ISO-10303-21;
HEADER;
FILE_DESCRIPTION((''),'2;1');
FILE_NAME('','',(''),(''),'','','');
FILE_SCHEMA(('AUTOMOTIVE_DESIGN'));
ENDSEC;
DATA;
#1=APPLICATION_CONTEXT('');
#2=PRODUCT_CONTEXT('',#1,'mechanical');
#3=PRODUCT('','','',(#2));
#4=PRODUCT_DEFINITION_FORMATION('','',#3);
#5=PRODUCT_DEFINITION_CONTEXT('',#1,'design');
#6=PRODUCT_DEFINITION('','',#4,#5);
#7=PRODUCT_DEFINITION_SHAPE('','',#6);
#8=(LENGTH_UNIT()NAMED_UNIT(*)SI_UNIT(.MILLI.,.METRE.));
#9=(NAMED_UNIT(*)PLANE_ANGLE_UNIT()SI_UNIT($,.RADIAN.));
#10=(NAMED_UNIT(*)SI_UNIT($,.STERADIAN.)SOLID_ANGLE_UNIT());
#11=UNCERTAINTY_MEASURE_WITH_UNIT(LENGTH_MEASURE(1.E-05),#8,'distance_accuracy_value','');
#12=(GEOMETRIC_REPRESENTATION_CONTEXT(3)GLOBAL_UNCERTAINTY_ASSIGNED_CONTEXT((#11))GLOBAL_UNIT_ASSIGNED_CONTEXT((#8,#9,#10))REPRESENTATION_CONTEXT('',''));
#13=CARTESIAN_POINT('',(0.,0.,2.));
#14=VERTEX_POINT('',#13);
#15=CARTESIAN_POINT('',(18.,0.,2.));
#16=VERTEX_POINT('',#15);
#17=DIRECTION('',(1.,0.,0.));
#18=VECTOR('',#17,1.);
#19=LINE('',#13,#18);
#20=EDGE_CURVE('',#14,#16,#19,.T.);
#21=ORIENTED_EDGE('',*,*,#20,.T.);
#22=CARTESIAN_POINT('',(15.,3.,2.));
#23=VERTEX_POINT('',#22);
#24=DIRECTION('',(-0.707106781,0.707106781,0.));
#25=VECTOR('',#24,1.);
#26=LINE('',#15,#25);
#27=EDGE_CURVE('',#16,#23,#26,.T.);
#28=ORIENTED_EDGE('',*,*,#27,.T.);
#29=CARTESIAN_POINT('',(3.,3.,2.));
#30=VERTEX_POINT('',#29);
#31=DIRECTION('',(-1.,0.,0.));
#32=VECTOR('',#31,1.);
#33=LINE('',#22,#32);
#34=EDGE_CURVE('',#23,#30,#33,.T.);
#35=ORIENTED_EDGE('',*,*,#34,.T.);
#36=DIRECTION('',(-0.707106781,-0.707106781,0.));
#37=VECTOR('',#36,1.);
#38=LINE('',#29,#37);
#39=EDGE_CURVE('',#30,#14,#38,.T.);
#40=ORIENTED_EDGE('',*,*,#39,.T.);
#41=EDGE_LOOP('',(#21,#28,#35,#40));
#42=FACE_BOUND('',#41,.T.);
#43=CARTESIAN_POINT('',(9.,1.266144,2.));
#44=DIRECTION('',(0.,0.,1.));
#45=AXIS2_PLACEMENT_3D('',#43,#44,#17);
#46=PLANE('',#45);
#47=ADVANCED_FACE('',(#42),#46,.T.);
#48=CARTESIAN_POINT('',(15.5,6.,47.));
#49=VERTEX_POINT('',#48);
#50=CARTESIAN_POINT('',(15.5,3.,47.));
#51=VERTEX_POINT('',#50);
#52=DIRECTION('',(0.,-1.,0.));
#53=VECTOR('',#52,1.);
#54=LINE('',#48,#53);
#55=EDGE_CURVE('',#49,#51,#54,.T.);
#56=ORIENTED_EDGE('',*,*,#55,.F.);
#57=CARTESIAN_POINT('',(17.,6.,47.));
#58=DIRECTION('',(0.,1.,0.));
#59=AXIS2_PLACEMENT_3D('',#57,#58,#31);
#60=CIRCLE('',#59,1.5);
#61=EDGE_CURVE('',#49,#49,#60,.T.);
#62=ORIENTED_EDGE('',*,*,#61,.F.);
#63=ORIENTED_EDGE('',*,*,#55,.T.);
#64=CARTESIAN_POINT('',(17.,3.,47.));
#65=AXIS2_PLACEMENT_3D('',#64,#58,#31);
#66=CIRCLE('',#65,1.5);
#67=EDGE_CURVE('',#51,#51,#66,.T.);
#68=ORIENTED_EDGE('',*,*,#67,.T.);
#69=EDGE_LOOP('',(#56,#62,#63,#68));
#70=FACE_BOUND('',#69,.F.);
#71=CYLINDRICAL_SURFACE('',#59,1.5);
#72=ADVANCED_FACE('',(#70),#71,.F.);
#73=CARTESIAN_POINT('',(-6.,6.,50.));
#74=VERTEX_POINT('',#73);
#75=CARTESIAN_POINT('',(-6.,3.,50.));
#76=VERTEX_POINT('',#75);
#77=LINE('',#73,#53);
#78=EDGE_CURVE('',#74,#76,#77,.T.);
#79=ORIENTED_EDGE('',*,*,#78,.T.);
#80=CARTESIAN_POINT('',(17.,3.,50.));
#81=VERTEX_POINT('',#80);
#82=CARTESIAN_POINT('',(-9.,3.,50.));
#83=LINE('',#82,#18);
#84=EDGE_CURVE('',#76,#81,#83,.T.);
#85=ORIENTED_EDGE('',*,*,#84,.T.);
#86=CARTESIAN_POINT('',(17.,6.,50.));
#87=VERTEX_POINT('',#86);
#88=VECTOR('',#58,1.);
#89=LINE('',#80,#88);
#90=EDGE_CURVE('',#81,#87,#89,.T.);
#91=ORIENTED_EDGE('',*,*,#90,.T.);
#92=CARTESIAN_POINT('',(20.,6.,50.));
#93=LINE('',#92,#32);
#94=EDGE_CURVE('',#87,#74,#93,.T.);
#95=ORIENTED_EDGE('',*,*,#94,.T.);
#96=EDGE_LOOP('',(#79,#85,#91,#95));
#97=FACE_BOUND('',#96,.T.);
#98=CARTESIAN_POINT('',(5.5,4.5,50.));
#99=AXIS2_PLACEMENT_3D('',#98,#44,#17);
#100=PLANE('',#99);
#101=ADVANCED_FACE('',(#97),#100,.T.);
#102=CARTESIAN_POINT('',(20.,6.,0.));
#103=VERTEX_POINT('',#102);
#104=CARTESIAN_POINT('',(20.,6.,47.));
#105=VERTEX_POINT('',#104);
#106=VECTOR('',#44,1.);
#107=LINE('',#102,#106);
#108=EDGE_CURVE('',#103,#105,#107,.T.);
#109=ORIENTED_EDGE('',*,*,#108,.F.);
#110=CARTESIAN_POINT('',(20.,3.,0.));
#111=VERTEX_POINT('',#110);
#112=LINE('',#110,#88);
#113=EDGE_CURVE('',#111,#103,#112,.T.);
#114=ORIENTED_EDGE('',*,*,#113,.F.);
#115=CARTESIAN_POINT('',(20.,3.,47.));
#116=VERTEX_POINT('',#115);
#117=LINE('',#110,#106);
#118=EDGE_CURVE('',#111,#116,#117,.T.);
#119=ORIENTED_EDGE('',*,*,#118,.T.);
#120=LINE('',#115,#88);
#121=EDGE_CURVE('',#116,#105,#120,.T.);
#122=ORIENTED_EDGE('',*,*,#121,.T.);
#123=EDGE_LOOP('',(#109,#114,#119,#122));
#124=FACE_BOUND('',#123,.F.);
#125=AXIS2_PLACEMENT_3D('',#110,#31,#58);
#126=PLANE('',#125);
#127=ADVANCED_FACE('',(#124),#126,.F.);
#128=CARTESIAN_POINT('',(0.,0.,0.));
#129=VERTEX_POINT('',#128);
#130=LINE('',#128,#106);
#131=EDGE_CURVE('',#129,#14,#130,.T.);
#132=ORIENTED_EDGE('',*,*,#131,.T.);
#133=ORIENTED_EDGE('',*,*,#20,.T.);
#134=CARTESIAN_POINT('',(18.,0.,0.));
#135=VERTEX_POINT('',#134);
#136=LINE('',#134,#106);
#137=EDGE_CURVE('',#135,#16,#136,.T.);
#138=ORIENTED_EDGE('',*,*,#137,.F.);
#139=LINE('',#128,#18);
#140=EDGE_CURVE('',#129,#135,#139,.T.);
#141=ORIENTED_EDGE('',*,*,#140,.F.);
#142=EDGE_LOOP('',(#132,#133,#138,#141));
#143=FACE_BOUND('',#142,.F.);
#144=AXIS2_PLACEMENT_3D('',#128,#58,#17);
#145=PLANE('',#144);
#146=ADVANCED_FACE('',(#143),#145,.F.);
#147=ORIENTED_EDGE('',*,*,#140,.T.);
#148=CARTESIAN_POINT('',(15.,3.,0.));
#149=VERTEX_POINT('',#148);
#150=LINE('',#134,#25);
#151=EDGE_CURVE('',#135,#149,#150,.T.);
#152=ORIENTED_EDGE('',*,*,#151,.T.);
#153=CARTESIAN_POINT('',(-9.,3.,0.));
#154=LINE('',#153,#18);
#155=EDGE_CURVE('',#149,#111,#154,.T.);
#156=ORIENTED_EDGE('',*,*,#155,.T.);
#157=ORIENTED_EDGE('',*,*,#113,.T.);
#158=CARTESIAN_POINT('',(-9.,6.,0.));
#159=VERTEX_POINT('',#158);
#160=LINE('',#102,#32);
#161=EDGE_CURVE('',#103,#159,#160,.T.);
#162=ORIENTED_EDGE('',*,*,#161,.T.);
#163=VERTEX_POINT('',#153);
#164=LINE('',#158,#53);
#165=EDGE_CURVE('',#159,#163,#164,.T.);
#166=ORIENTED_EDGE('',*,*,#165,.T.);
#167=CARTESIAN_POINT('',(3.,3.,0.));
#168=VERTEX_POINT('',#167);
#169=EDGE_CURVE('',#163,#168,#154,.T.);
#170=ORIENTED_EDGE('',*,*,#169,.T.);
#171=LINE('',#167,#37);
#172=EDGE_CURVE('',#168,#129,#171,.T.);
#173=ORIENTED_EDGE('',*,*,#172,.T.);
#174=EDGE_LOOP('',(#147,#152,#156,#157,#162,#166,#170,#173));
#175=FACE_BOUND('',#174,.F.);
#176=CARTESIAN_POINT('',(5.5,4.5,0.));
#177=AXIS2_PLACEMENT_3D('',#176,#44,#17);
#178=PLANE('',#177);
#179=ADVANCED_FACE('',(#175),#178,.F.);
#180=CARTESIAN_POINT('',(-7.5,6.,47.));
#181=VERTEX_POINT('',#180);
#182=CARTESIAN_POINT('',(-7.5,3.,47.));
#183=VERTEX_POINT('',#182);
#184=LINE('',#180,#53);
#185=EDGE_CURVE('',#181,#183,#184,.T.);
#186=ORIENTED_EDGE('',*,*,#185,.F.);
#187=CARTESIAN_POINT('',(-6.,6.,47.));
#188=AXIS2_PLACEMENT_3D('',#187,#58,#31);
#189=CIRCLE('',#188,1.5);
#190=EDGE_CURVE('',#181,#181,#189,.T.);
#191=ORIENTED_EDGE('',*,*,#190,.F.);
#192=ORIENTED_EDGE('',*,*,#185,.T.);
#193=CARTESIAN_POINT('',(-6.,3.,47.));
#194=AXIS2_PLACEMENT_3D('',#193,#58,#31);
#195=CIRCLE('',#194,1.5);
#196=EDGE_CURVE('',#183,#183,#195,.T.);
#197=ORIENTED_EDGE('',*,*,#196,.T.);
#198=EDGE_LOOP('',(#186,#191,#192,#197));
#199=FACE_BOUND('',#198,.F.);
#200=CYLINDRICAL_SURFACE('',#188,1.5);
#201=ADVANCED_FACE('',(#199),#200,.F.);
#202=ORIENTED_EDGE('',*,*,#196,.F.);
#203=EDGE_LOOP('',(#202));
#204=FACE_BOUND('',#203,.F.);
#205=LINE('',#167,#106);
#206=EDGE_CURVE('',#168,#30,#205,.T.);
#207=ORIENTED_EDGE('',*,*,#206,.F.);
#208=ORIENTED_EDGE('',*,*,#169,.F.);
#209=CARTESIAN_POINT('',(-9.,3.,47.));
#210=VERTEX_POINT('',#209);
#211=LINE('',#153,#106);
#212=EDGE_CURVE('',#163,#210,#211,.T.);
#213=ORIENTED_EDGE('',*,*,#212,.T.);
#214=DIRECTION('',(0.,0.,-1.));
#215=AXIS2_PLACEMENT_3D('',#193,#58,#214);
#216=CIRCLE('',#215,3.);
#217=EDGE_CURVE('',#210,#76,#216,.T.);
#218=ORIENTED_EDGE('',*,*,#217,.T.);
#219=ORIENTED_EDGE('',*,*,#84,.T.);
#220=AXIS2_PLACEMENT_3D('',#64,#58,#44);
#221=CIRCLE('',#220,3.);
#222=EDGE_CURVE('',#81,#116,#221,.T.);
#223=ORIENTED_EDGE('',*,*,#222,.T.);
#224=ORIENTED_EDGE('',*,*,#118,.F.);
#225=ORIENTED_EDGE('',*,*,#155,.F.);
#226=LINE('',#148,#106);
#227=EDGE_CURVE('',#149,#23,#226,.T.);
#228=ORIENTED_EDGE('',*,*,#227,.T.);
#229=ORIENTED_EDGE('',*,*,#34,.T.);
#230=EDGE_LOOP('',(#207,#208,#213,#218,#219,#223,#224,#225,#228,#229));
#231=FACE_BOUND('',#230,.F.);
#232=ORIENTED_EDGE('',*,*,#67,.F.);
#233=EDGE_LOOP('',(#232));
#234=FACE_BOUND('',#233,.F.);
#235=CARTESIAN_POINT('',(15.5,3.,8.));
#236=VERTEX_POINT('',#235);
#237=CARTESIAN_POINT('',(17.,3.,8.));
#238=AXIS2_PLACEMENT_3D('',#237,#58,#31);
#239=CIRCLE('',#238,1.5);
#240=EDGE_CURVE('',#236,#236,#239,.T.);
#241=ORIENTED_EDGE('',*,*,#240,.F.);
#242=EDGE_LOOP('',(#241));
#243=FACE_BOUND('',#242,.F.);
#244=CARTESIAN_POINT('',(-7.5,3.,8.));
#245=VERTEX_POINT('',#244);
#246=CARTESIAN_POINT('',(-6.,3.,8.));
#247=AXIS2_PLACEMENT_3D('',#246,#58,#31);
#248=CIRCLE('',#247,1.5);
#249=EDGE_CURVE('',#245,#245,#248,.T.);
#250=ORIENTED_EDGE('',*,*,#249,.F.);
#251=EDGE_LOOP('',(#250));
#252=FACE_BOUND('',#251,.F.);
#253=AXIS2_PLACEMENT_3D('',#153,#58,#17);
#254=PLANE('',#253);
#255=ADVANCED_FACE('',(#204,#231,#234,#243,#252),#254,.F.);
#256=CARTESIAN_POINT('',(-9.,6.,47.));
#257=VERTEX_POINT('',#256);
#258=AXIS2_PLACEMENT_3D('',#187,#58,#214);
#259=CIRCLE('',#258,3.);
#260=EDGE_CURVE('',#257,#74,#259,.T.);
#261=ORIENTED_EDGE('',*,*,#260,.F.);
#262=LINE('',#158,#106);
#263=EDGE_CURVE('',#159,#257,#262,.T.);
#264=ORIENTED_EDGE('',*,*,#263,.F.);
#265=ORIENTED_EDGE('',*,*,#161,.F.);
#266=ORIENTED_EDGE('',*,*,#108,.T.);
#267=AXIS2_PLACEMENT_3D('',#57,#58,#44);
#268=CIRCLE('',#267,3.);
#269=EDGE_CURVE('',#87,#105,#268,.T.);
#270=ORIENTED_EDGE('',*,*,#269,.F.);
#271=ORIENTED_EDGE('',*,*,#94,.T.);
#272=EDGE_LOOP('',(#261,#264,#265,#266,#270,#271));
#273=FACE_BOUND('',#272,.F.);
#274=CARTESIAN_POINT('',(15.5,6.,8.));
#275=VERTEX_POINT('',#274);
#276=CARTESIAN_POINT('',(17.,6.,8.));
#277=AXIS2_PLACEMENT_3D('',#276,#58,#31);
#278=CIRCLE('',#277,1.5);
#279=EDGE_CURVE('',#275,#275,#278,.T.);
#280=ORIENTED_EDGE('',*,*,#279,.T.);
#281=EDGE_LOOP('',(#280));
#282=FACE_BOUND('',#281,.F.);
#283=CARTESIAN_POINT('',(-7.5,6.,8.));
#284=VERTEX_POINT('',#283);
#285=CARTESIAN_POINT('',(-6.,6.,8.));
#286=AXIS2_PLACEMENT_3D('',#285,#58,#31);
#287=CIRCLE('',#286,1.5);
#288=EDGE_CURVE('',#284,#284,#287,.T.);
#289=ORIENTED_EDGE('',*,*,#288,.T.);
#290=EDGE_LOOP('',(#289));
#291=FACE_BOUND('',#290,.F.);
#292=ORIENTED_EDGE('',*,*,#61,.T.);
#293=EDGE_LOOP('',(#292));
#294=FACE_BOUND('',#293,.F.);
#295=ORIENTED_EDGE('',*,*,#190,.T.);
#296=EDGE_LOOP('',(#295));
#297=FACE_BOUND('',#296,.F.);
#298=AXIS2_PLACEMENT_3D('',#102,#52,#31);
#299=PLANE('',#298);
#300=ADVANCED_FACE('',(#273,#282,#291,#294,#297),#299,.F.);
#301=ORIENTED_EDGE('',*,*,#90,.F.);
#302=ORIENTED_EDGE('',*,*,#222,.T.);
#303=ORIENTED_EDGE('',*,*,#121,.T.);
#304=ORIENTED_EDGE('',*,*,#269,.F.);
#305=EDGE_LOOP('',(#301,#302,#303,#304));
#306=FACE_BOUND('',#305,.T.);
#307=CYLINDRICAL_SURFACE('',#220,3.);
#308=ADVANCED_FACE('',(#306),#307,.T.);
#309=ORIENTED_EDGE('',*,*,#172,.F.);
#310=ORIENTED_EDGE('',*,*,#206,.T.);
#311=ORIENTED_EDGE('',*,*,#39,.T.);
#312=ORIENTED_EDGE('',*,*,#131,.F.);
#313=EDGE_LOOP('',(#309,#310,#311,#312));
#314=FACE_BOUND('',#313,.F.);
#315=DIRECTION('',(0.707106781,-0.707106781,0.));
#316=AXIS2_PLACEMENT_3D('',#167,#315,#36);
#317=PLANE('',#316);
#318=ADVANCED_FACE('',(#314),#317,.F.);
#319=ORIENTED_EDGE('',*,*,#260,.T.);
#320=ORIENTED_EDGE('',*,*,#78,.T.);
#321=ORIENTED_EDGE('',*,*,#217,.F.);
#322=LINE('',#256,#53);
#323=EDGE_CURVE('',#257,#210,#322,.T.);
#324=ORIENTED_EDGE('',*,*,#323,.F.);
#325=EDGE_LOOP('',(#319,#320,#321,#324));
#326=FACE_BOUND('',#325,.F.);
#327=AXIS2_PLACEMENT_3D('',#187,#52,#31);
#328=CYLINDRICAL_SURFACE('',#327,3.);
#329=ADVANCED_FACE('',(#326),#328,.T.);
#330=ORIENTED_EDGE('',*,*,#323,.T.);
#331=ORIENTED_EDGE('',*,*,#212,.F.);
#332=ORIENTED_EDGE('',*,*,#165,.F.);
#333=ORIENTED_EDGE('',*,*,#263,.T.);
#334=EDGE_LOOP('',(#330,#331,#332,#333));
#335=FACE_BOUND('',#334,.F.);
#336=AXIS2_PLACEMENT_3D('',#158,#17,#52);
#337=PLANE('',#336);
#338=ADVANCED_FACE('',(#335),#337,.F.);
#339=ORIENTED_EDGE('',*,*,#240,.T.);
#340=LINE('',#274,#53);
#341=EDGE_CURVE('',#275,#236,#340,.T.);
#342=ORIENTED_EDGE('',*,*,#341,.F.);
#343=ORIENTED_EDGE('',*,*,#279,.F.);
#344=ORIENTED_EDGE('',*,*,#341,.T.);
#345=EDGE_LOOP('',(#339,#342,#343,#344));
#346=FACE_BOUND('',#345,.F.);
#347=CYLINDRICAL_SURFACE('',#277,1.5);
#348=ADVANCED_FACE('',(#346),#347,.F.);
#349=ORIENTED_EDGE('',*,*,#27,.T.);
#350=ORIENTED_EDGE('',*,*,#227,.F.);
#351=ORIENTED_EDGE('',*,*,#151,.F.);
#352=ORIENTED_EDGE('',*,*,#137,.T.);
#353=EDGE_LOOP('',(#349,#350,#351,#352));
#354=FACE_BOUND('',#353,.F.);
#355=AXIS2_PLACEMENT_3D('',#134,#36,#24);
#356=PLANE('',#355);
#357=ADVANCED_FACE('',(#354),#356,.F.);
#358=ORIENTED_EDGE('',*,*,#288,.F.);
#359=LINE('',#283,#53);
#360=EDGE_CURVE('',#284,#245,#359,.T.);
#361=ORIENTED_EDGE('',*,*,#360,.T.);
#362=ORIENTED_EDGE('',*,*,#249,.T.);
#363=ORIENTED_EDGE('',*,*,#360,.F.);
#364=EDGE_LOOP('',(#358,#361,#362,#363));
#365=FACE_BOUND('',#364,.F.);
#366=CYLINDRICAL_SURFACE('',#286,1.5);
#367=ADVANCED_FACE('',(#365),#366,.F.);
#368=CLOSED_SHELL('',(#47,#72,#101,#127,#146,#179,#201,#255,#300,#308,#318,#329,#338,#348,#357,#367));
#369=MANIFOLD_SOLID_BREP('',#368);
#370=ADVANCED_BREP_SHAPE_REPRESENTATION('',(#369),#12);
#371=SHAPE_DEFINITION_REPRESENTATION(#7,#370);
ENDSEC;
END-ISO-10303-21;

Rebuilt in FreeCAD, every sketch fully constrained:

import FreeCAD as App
import Part
import Sketcher
from FreeCAD import Vector


def edges_at(feature, points):
    """Names of the edges that pass closest to the given points."""
    edges = feature.Shape.Edges
    near = lambda p: min(range(len(edges)), key=lambda i: edges[i].distToShape(Part.Vertex(*p))[0])
    return sorted({f"Edge{near(p) + 1}" for p in points})


def add_polygon(sketch, points):
    """Adds a closed chain of lines whose ends are joined by coincident constraints."""
    first, n = sketch.GeometryCount, len(points)
    for a, b in zip(points, points[1:] + points[:1]):
        sketch.addGeometry(Part.LineSegment(App.Vector(*a, 0), App.Vector(*b, 0)), False)
    for i in range(n):
        sketch.addConstraint(Sketcher.Constraint("Coincident", first + i, 2, first + (i + 1) % n, 1))

doc = App.newDocument("Part")
body = doc.addObject("PartDesign::Body", "Body")

# Sketch on XY plane
sketch1 = doc.addObject("Sketcher::SketchObject", "Sketch")
body.addObject(sketch1)
sketch1.AttachmentSupport = (doc.XY_Plane, [""])
sketch1.MapMode = "FlatFace"
add_polygon(sketch1, [(3, 3), (0, 0), (18, 0), (15, 3)])  # lines 0-3
sketch1.addConstraint(Sketcher.Constraint("Horizontal", 1))
sketch1.addConstraint(Sketcher.Constraint("Horizontal", 3))
sketch1.addConstraint(Sketcher.Constraint("Coincident", 0, 2, -1, 1))
sketch1.addConstraint(Sketcher.Constraint("Perpendicular", 0, 2))
sketch1.addConstraint(Sketcher.Constraint("Equal", 0, 2))
sketch1.addConstraint(Sketcher.Constraint("DistanceX", 1, 1, 1, 2, 18.0))
sketch1.addConstraint(Sketcher.Constraint("DistanceX", 3, 2, 3, 1, 12.0))
pad1 = doc.addObject("PartDesign::Pad", "Pad")
body.addObject(pad1)
pad1.Profile = sketch1
pad1.Length = 2

# Sketch on XY plane
sketch2 = doc.addObject("Sketcher::SketchObject", "Sketch001")
body.addObject(sketch2)
sketch2.AttachmentSupport = (doc.XY_Plane, [""])
sketch2.MapMode = "FlatFace"
add_polygon(sketch2, [(-9, 3), (20, 3), (20, 6), (-9, 6)])  # lines 0-3
sketch2.addConstraint(Sketcher.Constraint("Horizontal", 0))
sketch2.addConstraint(Sketcher.Constraint("Vertical", 1))
sketch2.addConstraint(Sketcher.Constraint("Horizontal", 2))
sketch2.addConstraint(Sketcher.Constraint("Vertical", 3))
sketch2.addConstraint(Sketcher.Constraint("DistanceX", 0, 1, 0, 2, 29.0))
sketch2.addConstraint(Sketcher.Constraint("DistanceY", 1, 1, 1, 2, 3.0))
sketch2.addConstraint(Sketcher.Constraint("DistanceX", -1, 1, 0, 2, 20.0))
sketch2.addConstraint(Sketcher.Constraint("DistanceY", -1, 1, 0, 2, 3.0))
pad2 = doc.addObject("PartDesign::Pad", "Pad001")
body.addObject(pad2)
pad2.Profile = sketch2
pad2.Length = 50

# Sketch on XZ plane
sketch3 = doc.addObject("Sketcher::SketchObject", "Sketch002")
body.addObject(sketch3)
sketch3.AttachmentSupport = (doc.XZ_Plane, [""])
sketch3.MapMode = "FlatFace"
sketch3.AttachmentOffset = App.Placement(Vector(0, 0, -6), App.Rotation())
sketch3.addGeometry(Part.Circle(Vector(-6, 8, 0), Vector(0, 0, 1), 1.5), False)
sketch3.addGeometry(Part.Circle(Vector(17, 8, 0), Vector(0, 0, 1), 1.5), False)
sketch3.addGeometry(Part.Circle(Vector(17, 47, 0), Vector(0, 0, 1), 1.5), False)
sketch3.addGeometry(Part.Circle(Vector(-6, 47, 0), Vector(0, 0, 1), 1.5), False)
sketch3.addConstraint(Sketcher.Constraint("Equal", 0, 1))
sketch3.addConstraint(Sketcher.Constraint("Equal", 1, 2))
sketch3.addConstraint(Sketcher.Constraint("Equal", 2, 3))
sketch3.addConstraint(Sketcher.Constraint("Horizontal", 0, 3, 1, 3))
sketch3.addConstraint(Sketcher.Constraint("Horizontal", 2, 3, 3, 3))
sketch3.addConstraint(Sketcher.Constraint("Vertical", 1, 3, 2, 3))
sketch3.addConstraint(Sketcher.Constraint("Vertical", 0, 3, 3, 3))
sketch3.addConstraint(Sketcher.Constraint("Diameter", 0, 3.0))
sketch3.addConstraint(Sketcher.Constraint("DistanceX", 0, 3, -1, 1, 6.0))
sketch3.addConstraint(Sketcher.Constraint("DistanceY", -1, 1, 0, 3, 8.0))
sketch3.addConstraint(Sketcher.Constraint("DistanceX", -1, 1, 1, 3, 17.0))
sketch3.addConstraint(Sketcher.Constraint("DistanceY", -1, 1, 2, 3, 47.0))
pocket1 = doc.addObject("PartDesign::Pocket", "Pocket")
body.addObject(pocket1)
pocket1.Profile = sketch3
pocket1.Length = 25
pocket1.Reversed = True
doc.recompute()

fillet = doc.addObject("PartDesign::Fillet", "Fillet")
body.addObject(fillet)
fillet.Base = (pocket1, edges_at(pocket1, [(-9, 4.5, 50), (20, 4.5, 50)]))
fillet.Radius = 3

doc.recompute()
